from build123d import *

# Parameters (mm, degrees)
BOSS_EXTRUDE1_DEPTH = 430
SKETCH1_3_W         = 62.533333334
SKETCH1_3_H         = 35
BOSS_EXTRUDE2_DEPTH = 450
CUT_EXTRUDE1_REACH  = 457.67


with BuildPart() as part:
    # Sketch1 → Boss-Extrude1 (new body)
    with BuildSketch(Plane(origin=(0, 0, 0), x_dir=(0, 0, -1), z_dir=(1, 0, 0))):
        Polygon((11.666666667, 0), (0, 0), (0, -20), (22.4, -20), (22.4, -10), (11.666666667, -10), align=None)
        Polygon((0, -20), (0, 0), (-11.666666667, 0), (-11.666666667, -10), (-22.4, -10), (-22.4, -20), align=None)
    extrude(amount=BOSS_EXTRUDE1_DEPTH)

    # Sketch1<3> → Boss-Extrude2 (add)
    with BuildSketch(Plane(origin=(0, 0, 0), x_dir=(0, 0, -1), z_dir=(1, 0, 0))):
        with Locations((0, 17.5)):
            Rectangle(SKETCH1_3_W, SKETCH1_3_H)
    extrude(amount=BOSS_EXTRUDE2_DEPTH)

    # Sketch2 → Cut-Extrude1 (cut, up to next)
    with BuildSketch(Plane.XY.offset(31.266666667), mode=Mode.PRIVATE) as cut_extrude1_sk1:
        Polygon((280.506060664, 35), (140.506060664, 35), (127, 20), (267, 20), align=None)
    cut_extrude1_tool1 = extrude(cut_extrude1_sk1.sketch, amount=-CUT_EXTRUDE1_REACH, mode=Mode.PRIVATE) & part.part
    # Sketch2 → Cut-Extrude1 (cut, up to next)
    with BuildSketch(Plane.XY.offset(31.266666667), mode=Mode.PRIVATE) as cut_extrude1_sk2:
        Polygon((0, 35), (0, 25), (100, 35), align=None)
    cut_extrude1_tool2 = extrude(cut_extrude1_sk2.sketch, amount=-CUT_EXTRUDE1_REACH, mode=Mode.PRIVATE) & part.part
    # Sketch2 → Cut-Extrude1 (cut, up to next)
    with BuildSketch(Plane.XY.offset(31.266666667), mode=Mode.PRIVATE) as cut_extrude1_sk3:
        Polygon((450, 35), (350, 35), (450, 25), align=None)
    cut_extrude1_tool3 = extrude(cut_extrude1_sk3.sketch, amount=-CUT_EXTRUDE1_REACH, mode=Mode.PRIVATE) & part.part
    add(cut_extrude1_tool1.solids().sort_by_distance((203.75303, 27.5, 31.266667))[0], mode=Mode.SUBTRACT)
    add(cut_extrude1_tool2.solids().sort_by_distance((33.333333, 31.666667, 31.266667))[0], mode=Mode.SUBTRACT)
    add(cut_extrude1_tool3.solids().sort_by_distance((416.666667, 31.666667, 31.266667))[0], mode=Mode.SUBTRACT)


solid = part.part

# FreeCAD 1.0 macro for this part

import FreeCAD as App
import Part
import Sketcher
from FreeCAD import Vector
Q = App.Units.Quantity


def add_polygon(sketch, points):
    """Adds a closed chain of lines whose ends are joined by coincident constraints."""
    first, n = sketch.GeometryCount, len(points)
    for a, b in zip(points, points[1:] + points[:1]):
        sketch.addGeometry(Part.LineSegment(App.Vector(*a, 0), App.Vector(*b, 0)), False)
    for i in range(n):
        sketch.addConstraint(Sketcher.Constraint("Coincident", first + i, 2, first + (i + 1) % n, 1))

doc = App.newDocument("Part")
body = doc.addObject("PartDesign::Body", "Body")

# Sketch on YZ plane
sketch1 = body.newObject("Sketcher::SketchObject", "Sketch")
sketch1.AttachmentSupport = (doc.getObject("YZ_Plane"), [""])
sketch1.MapMode = "FlatFace"
add_polygon(sketch1, [(0, -12), (0, 12), (-10, 12), (-10, 22), (-20, 22), (-20, -22), (-10, -22), (-10, -12)])  # lines 0-7
sketch1.addConstraint(Sketcher.Constraint("Vertical", 0))
sketch1.addConstraint(Sketcher.Constraint("Horizontal", 1))
sketch1.addConstraint(Sketcher.Constraint("Vertical", 2))
sketch1.addConstraint(Sketcher.Constraint("Horizontal", 3))
sketch1.addConstraint(Sketcher.Constraint("Vertical", 4))
sketch1.addConstraint(Sketcher.Constraint("Horizontal", 5))
sketch1.addConstraint(Sketcher.Constraint("Vertical", 6))
sketch1.addConstraint(Sketcher.Constraint("Horizontal", 7))
sketch1.addConstraint(Sketcher.Constraint("Symmetric", 0, 2, 7, 2, -1, 1))
sketch1.addConstraint(Sketcher.Constraint("Symmetric", 2, 2, 5, 2, -1))
sketch1.addConstraint(Sketcher.Constraint("Equal", 1, 3))
sketch1.addConstraint(Sketcher.Constraint("DistanceX", 1, 2, 1, 1, 10.0))
sketch1.addConstraint(Sketcher.Constraint("DistanceY", 4, 2, 4, 1, 44.8))
sketch1.addConstraint(Sketcher.Constraint("DistanceY", 0, 1, 0, 2, 23.333333))
pad1 = body.newObject("PartDesign::Pad", "Pad")
pad1.Profile = sketch1
pad1.Length = 430

# Sketch on YZ plane
sketch2 = body.newObject("Sketcher::SketchObject", "Sketch001")
sketch2.AttachmentSupport = (doc.getObject("YZ_Plane"), [""])
sketch2.MapMode = "FlatFace"
add_polygon(sketch2, [(35, 31), (0, 31), (0, -31), (35, -31)])  # lines 0-3
sketch2.addConstraint(Sketcher.Constraint("Horizontal", 0))
sketch2.addConstraint(Sketcher.Constraint("Vertical", 1))
sketch2.addConstraint(Sketcher.Constraint("Horizontal", 2))
sketch2.addConstraint(Sketcher.Constraint("Vertical", 3))
sketch2.addConstraint(Sketcher.Constraint("Symmetric", 0, 2, 1, 2, -1, 1))
sketch2.addConstraint(Sketcher.Constraint("DistanceX", 0, 2, 0, 1, 35.0))
sketch2.addConstraint(Sketcher.Constraint("DistanceY", 1, 2, 1, 1, 62.533333))
pad2 = body.newObject("PartDesign::Pad", "Pad001")
pad2.Profile = sketch2
pad2.Length = 450

# Sketch on XY plane
sketch3 = body.newObject("Sketcher::SketchObject", "Sketch002")
sketch3.AttachmentSupport = (doc.getObject("XY_Plane"), [""])
sketch3.MapMode = "FlatFace"
sketch3.AttachmentOffset = App.Placement(Vector(0, 0, 31.266667), App.Rotation())
add_polygon(sketch3, [(281, 35), (141, 35), (127, 20), (267, 20)])  # lines 0-3
sketch3.addConstraint(Sketcher.Constraint("Horizontal", 0))
sketch3.addConstraint(Sketcher.Constraint("Horizontal", 2))
sketch3.addConstraint(Sketcher.Constraint("Parallel", 1, 3))
sketch3.addConstraint(Sketcher.Constraint("DistanceX", 0, 2, 0, 1, 140.0))
sketch3.addConstraint(Sketcher.Constraint("Angle", 1, Q("-132 deg")))
sketch3.addConstraint(Sketcher.Constraint("DistanceY", -1, 1, 0, 2, 35.0))
sketch3.addConstraint(Sketcher.Constraint("DistanceX", -1, 1, 1, 2, 127.0))
sketch3.addConstraint(Sketcher.Constraint("DistanceY", -1, 1, 1, 2, 20.0))
pocket1 = body.newObject("PartDesign::Pocket", "Pocket")
pocket1.Profile = sketch3
pocket1.Type = "UpToFirst"

# Sketch on XY plane
sketch4 = body.newObject("Sketcher::SketchObject", "Sketch003")
sketch4.AttachmentSupport = (doc.getObject("XY_Plane"), [""])
sketch4.MapMode = "FlatFace"
sketch4.AttachmentOffset = App.Placement(Vector(0, 0, 31.266667), App.Rotation())
add_polygon(sketch4, [(0, 35), (0, 25), (100, 35)])  # lines 0-2
sketch4.addConstraint(Sketcher.Constraint("Vertical", 0))
sketch4.addConstraint(Sketcher.Constraint("Horizontal", 2))
sketch4.addConstraint(Sketcher.Constraint("PointOnObject", 0, 2, -2))
sketch4.addConstraint(Sketcher.Constraint("DistanceX", 2, 2, 2, 1, 100.0))
sketch4.addConstraint(Sketcher.Constraint("DistanceY", 0, 2, 0, 1, 10.0))
sketch4.addConstraint(Sketcher.Constraint("DistanceY", -1, 1, 0, 2, 25.0))
pocket2 = body.newObject("PartDesign::Pocket", "Pocket001")
pocket2.Profile = sketch4
pocket2.Type = "UpToFirst"

# Sketch on XY plane
sketch5 = body.newObject("Sketcher::SketchObject", "Sketch004")
sketch5.AttachmentSupport = (doc.getObject("XY_Plane"), [""])
sketch5.MapMode = "FlatFace"
sketch5.AttachmentOffset = App.Placement(Vector(0, 0, 31.266667), App.Rotation())
add_polygon(sketch5, [(450, 35), (350, 35), (450, 25)])  # lines 0-2
sketch5.addConstraint(Sketcher.Constraint("Horizontal", 0))
sketch5.addConstraint(Sketcher.Constraint("Vertical", 2))
sketch5.addConstraint(Sketcher.Constraint("DistanceX", 0, 2, 0, 1, 100.0))
sketch5.addConstraint(Sketcher.Constraint("DistanceY", 2, 1, 2, 2, 10.0))
sketch5.addConstraint(Sketcher.Constraint("DistanceX", -1, 1, 0, 2, 350.0))
sketch5.addConstraint(Sketcher.Constraint("DistanceY", -1, 1, 0, 2, 35.0))
pocket3 = body.newObject("PartDesign::Pocket", "Pocket002")
pocket3.Profile = sketch5
pocket3.Type = "UpToFirst"

doc.recompute()
